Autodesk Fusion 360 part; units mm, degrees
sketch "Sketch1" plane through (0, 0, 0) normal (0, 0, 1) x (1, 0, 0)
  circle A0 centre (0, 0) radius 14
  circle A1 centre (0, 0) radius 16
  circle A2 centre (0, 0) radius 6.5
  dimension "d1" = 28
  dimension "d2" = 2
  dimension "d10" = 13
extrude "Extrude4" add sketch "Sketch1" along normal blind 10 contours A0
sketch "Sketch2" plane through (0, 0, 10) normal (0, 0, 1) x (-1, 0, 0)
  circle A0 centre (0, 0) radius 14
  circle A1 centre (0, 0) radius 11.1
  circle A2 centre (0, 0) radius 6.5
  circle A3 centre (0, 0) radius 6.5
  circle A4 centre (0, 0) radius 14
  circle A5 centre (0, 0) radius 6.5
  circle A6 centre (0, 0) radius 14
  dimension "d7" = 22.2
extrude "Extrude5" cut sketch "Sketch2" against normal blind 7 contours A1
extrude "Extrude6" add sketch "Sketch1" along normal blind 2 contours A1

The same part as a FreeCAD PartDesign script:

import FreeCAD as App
import Part
import Sketcher
from FreeCAD import Vector

doc = App.newDocument("Part")
body = doc.addObject("PartDesign::Body", "Body")

# Sketch on XY plane
sketch1 = body.newObject("Sketcher::SketchObject", "Sketch")
sketch1.AttachmentSupport = (doc.getObject("XY_Plane"), [""])
sketch1.MapMode = "FlatFace"
sketch1.addGeometry([
    Part.Circle(Vector(0, 0, 0), Vector(0, 0, 1), 14),
    Part.Circle(Vector(0, 0, 0), Vector(0, 0, 1), 6),
], False)
sketch1.addConstraint([
    Sketcher.Constraint("Coincident", 0, 3, -1, 1),
    Sketcher.Constraint("Coincident", 1, 3, -1, 1),
    Sketcher.Constraint("Diameter", 0, 28.0),
    Sketcher.Constraint("Diameter", 1, 13.0),
])
pad1 = body.newObject("PartDesign::Pad", "Pad")
pad1.Profile = sketch1
pad1.Length = 10

# Sketch on XY plane
sketch2 = body.newObject("Sketcher::SketchObject", "Sketch001")
sketch2.AttachmentSupport = (doc.getObject("XY_Plane"), [""])
sketch2.MapMode = "FlatFace"
sketch2.AttachmentOffset = App.Placement(Vector(0, 0, 10), App.Rotation())
sketch2.addGeometry([
    Part.Circle(Vector(0, 0, 0), Vector(0, 0, 1), 11),
    Part.Circle(Vector(0, 0, 0), Vector(0, 0, 1), 6),
], False)
sketch2.addConstraint([
    Sketcher.Constraint("Coincident", 0, 3, -1, 1),
    Sketcher.Constraint("Coincident", 1, 3, -1, 1),
    Sketcher.Constraint("Diameter", 0, 22.2),
    Sketcher.Constraint("Diameter", 1, 13.0),
])
pocket1 = body.newObject("PartDesign::Pocket", "Pocket")
pocket1.Profile = sketch2
pocket1.Length = 7

# Sketch on XY plane
sketch3 = body.newObject("Sketcher::SketchObject", "Sketch002")
sketch3.AttachmentSupport = (doc.getObject("XY_Plane"), [""])
sketch3.MapMode = "FlatFace"
sketch3.addGeometry([
    Part.Circle(Vector(0, 0, 0), Vector(0, 0, 1), 16),
    Part.Circle(Vector(0, 0, 0), Vector(0, 0, 1), 14),
], False)
sketch3.addConstraint([
    Sketcher.Constraint("Coincident", 0, 3, -1, 1),
    Sketcher.Constraint("Coincident", 1, 3, -1, 1),
    Sketcher.Constraint("Diameter", 1, 28.0),
    Sketcher.Constraint("Diameter", 0, 32.0),
])
pad2 = body.newObject("PartDesign::Pad", "Pad001")
pad2.Profile = sketch3
pad2.Length = 2

doc.recompute()
